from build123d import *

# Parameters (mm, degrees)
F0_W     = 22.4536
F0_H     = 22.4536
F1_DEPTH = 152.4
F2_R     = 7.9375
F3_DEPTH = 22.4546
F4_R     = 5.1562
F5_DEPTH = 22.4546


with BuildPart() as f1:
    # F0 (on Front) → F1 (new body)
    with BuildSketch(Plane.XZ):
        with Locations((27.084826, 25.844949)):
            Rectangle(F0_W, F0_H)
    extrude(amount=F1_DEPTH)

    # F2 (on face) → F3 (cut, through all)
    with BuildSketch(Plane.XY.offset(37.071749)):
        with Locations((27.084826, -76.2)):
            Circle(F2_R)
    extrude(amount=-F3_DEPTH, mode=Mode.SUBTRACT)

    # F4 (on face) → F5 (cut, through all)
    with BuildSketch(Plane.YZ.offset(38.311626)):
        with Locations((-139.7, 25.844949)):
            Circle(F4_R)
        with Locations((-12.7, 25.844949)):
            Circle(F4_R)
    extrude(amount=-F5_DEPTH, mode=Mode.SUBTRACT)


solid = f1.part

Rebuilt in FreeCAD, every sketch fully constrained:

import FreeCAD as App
import Part
import Sketcher

V = App.Vector
Q = App.Units.Quantity

doc = App.newDocument("Part")
body = doc.addObject("PartDesign::Body", "Body")

# Sketch on XZ plane
sketch1 = doc.addObject("Sketcher::SketchObject", "Sketch")
body.addObject(sketch1)
sketch1.AttachmentSupport = (doc.XZ_Plane, [""])
sketch1.MapMode = "FlatFace"
sketch1.addGeometry(Part.LineSegment(V(16, 37, 0), V(16, 15, 0)), False)
sketch1.addGeometry(Part.LineSegment(V(16, 15, 0), V(38, 15, 0)), False)
sketch1.addGeometry(Part.LineSegment(V(38, 15, 0), V(38, 37, 0)), False)
sketch1.addGeometry(Part.LineSegment(V(38, 37, 0), V(16, 37, 0)), False)
sketch1.addConstraint(Sketcher.Constraint("Coincident", 0, 2, 1, 1))
sketch1.addConstraint(Sketcher.Constraint("Coincident", 1, 2, 2, 1))
sketch1.addConstraint(Sketcher.Constraint("Coincident", 2, 2, 3, 1))
sketch1.addConstraint(Sketcher.Constraint("Coincident", 3, 2, 0, 1))
sketch1.addConstraint(Sketcher.Constraint("Vertical", 0))
sketch1.addConstraint(Sketcher.Constraint("Horizontal", 1))
sketch1.addConstraint(Sketcher.Constraint("Vertical", 2))
sketch1.addConstraint(Sketcher.Constraint("Horizontal", 3))
sketch1.addConstraint(Sketcher.Constraint("Equal", 3, 0))
sketch1.addConstraint(Sketcher.Constraint("DistanceX", 1, 1, 1, 2, Q("0.884 in")))
sketch1.addConstraint(Sketcher.Constraint("DistanceY", -1, 1, 0, 2, Q("14.618149 mm")))
sketch1.addConstraint(Sketcher.Constraint("DistanceX", -1, 1, 0, 2, Q("15.858026 mm")))
pad1 = doc.addObject("PartDesign::Pad", "Pad")
body.addObject(pad1)
pad1.Profile = sketch1
pad1.Length = Q("6 in")

# Sketch on XY plane
sketch2 = doc.addObject("Sketcher::SketchObject", "Sketch001")
body.addObject(sketch2)
sketch2.AttachmentSupport = (doc.XY_Plane, [""])
sketch2.MapMode = "FlatFace"
sketch2.AttachmentOffset = App.Placement(V(0, 0, 37.071749), App.Rotation())
sketch2.addGeometry(Part.Circle(V(27, -76, 0), V(0, 0, 1), 8), False)
sketch2.addConstraint(Sketcher.Constraint("Diameter", 0, Q("0.625 in")))
sketch2.addConstraint(Sketcher.Constraint("DistanceY", 0, 3, -1, 1, Q("3 in")))
sketch2.addConstraint(Sketcher.Constraint("DistanceX", -1, 1, 0, 3, Q("27.084826 mm")))
pocket1 = doc.addObject("PartDesign::Pocket", "Pocket")
body.addObject(pocket1)
pocket1.Profile = sketch2
pocket1.Type = "ThroughAll"

# Sketch on YZ plane
sketch3 = doc.addObject("Sketcher::SketchObject", "Sketch002")
body.addObject(sketch3)
sketch3.AttachmentSupport = (doc.YZ_Plane, [""])
sketch3.MapMode = "FlatFace"
sketch3.AttachmentOffset = App.Placement(V(0, 0, 38.311626), App.Rotation())
sketch3.addGeometry(Part.Circle(V(-140, 26, 0), V(0, 0, 1), 5), False)
sketch3.addGeometry(Part.Circle(V(-13, 26, 0), V(0, 0, 1), 5), False)
sketch3.addConstraint(Sketcher.Constraint("Equal", 0, 1))
sketch3.addConstraint(Sketcher.Constraint("Horizontal", 0, 3, 1, 3))
sketch3.addConstraint(Sketcher.Constraint("Diameter", 0, Q("0.406 in")))
sketch3.addConstraint(Sketcher.Constraint("DistanceX", 0, 3, 1, 3, Q("5 in")))
sketch3.addConstraint(Sketcher.Constraint("DistanceX", 0, 3, -1, 1, Q("5.5 in")))
sketch3.addConstraint(Sketcher.Constraint("DistanceY", -1, 1, 0, 3, Q("25.844949 mm")))
pocket2 = doc.addObject("PartDesign::Pocket", "Pocket001")
body.addObject(pocket2)
pocket2.Profile = sketch3
pocket2.Type = "ThroughAll"

doc.recompute()
